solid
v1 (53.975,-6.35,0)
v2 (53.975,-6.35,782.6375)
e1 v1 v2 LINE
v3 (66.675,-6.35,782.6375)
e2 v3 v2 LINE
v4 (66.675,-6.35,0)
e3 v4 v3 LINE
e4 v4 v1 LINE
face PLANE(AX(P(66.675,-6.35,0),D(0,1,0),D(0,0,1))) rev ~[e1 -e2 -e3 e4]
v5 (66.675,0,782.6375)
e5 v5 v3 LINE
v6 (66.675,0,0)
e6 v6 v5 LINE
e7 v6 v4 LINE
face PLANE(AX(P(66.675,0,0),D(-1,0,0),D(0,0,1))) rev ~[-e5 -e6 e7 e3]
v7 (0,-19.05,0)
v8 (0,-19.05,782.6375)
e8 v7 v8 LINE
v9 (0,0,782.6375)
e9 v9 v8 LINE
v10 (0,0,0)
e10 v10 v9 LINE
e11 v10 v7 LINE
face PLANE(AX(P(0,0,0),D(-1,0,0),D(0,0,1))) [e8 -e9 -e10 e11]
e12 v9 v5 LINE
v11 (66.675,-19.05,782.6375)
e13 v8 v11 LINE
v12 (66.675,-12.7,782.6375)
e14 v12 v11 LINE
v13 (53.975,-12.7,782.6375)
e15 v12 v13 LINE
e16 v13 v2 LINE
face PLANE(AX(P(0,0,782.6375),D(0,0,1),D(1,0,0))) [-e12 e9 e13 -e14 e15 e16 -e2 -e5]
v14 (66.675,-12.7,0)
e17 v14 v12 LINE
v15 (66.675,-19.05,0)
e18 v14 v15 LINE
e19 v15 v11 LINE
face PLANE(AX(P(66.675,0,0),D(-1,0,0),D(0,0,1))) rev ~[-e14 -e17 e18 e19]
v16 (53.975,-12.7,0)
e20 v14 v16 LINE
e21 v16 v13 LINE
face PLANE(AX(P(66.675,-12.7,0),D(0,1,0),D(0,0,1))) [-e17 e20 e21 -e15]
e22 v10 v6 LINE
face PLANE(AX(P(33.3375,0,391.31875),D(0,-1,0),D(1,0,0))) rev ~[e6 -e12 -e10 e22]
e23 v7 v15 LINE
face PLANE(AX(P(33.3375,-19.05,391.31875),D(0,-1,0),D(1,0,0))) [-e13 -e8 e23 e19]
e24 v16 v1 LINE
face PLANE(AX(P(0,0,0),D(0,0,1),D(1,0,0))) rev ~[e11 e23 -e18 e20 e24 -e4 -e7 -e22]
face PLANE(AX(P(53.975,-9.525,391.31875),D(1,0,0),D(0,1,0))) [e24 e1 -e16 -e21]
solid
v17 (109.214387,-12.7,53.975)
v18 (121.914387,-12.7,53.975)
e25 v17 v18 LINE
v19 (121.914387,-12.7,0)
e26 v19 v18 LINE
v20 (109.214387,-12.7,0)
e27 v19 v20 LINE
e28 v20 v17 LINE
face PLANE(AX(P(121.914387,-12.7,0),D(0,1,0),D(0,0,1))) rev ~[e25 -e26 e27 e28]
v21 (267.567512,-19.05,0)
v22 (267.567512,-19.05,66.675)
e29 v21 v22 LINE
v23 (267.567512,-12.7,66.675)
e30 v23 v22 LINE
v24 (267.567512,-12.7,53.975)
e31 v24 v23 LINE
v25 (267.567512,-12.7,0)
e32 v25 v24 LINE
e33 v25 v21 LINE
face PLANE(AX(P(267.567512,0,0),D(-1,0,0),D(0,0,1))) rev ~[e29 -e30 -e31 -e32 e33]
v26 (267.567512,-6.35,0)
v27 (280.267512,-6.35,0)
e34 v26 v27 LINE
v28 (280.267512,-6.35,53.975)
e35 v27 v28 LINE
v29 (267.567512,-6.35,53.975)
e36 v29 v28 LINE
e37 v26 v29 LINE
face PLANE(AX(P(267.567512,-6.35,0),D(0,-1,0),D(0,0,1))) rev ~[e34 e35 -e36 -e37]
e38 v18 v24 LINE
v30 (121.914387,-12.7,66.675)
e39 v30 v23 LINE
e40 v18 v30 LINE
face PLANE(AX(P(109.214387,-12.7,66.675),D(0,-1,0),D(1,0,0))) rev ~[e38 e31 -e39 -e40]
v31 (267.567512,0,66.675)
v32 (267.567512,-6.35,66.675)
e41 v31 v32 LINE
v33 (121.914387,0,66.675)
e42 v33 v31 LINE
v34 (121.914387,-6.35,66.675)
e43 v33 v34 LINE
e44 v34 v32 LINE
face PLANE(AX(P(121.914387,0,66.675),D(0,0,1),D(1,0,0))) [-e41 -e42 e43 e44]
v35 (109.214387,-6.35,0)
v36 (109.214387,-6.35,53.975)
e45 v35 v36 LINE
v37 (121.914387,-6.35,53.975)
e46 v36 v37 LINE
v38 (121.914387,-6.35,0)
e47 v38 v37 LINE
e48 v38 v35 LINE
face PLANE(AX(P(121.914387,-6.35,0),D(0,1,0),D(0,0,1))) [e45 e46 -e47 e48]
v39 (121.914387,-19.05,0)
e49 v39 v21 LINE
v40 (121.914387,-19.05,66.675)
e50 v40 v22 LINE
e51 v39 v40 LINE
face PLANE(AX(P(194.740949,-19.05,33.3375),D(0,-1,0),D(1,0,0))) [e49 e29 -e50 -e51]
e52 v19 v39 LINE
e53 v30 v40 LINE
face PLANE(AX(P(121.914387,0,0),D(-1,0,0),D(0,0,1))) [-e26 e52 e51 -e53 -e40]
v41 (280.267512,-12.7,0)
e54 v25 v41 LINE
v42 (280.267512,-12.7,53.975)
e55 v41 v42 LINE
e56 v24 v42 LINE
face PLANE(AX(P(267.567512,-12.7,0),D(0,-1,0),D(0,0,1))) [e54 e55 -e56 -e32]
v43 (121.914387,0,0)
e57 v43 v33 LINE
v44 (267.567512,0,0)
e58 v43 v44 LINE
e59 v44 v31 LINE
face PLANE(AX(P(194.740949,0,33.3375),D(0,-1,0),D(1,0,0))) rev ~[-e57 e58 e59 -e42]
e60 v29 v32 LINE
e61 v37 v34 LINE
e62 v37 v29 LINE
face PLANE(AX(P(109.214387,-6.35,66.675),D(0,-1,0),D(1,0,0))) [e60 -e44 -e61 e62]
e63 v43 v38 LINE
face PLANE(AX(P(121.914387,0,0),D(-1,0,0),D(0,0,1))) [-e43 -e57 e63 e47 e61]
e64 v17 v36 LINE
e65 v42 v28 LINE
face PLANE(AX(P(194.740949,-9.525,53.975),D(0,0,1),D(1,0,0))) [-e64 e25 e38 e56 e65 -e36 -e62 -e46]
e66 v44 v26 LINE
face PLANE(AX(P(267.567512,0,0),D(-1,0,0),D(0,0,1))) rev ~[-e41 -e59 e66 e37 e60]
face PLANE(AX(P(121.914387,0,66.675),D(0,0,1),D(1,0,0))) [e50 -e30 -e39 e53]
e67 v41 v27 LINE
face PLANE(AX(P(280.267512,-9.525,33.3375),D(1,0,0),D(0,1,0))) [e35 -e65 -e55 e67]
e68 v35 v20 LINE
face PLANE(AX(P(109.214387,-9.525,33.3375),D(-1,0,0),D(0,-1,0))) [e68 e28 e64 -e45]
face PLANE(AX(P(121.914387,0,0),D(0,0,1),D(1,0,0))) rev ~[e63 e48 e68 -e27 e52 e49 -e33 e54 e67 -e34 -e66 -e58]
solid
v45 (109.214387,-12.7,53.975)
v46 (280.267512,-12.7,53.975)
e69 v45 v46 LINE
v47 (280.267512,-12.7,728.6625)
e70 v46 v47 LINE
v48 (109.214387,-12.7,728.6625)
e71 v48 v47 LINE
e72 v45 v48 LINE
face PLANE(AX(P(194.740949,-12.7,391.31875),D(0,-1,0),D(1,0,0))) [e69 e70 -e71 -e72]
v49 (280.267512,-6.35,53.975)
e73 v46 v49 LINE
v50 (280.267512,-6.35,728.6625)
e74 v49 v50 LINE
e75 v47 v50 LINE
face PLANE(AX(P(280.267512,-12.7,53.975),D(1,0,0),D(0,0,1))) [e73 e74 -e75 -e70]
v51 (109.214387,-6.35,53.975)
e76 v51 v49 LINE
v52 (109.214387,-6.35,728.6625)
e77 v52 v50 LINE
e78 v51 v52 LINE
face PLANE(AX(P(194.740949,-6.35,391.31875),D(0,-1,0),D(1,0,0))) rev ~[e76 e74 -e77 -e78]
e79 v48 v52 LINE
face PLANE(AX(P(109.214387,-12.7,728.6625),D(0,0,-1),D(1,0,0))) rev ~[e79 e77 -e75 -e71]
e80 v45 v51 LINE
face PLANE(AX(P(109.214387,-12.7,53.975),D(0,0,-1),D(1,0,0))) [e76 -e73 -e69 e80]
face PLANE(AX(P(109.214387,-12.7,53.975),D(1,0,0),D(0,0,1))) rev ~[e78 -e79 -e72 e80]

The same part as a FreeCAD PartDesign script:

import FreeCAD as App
import Part
import Sketcher

V = App.Vector
Q = App.Units.Quantity


def add_polygon(sketch, points):
    """Adds a closed chain of lines whose ends are joined by coincident constraints."""
    first, n = sketch.GeometryCount, len(points)
    for a, b in zip(points, points[1:] + points[:1]):
        sketch.addGeometry(Part.LineSegment(App.Vector(*a, 0), App.Vector(*b, 0)), False)
    for i in range(n):
        sketch.addConstraint(Sketcher.Constraint("Coincident", first + i, 2, first + (i + 1) % n, 1))

doc = App.newDocument("Part")
params = doc.addObject("Spreadsheet::Sheet", "Params")
for row, (alias, value) in enumerate([
    ("sketch1_width", "2.625 in"),
    ("sketch1_height", "30.8125 in"),
    ("pad1_length", "0.75 in"),
    ("sketch2_width", "0.25 in"),
    ("sketch2_height", "30.8125 in"),
    ("pocket1_length", "0.5 in"),
    ("sketch3_width", "5.734375 in"),
    ("sketch3_height", "2.625 in"),
    ("pad2_length", "0.75 in"),
    ("sketch4_width", "0.25 in"),
    ("sketch4_height", "2.625 in"),
    ("pad3_length", "0.5 in"),
    ("sketch5_width", "0.25 in"),
    ("sketch5_height", "2.625 in"),
    ("pad4_length", "0.5 in"),
    ("sketch6_height", "0.25 in"),
    ("sketch6_width", "6.734375 in"),
    ("pocket2_length", "0.5 in"),
    ("sketch7_width", "6.734375 in"),
    ("sketch7_height", "26.5625 in"),
    ("pad5_length", "0.25 in"),
], start=1):
    params.set(f"A{row}", alias)
    params.set(f"B{row}", "=" + value)
    params.setAlias(f"B{row}", alias)

body = doc.addObject("PartDesign::Body", "Body")

# Sketch on XZ plane
sketch1 = body.newObject("Sketcher::SketchObject", "Sketch")
sketch1.AttachmentSupport = (doc.getObject("XZ_Plane"), [""])
sketch1.MapMode = "FlatFace"
add_polygon(sketch1, [(0, 783), (0, 0), (67, 0), (67, 783)])  # lines 0-3
sketch1.addConstraint(Sketcher.Constraint("Vertical", 0))
sketch1.addConstraint(Sketcher.Constraint("Horizontal", 1))
sketch1.addConstraint(Sketcher.Constraint("Vertical", 2))
sketch1.addConstraint(Sketcher.Constraint("Horizontal", 3))
sketch1.addConstraint(Sketcher.Constraint("Coincident", 0, 2, -1, 1))
sketch1.addConstraint(Sketcher.Constraint("DistanceX", 1, 1, 1, 2, Q("2.625 in")))
sketch1.addConstraint(Sketcher.Constraint("DistanceY", 0, 2, 0, 1, Q("30.8125 in")))
sketch1.setExpression("Constraints[9]", "Params.sketch1_width")
sketch1.setExpression("Constraints[10]", "Params.sketch1_height")
pad1 = body.newObject("PartDesign::Pad", "Pad")
pad1.Profile = sketch1
pad1.setExpression("Length", "Params.pad1_length")

# Sketch on YZ plane
sketch2 = body.newObject("Sketcher::SketchObject", "Sketch001")
sketch2.AttachmentSupport = (doc.getObject("YZ_Plane"), [""])
sketch2.MapMode = "FlatFace"
sketch2.AttachmentOffset = App.Placement(V(0, 0, 2.625 * 25.4), App.Rotation())
add_polygon(sketch2, [(-13, 783), (-13, 0), (-6, 0), (-6, 783)])  # lines 0-3
sketch2.addConstraint(Sketcher.Constraint("Vertical", 0))
sketch2.addConstraint(Sketcher.Constraint("Horizontal", 1))
sketch2.addConstraint(Sketcher.Constraint("Vertical", 2))
sketch2.addConstraint(Sketcher.Constraint("Horizontal", 3))
sketch2.addConstraint(Sketcher.Constraint("PointOnObject", 0, 2, -1))
sketch2.addConstraint(Sketcher.Constraint("DistanceX", 1, 1, 1, 2, Q("0.25 in")))
sketch2.addConstraint(Sketcher.Constraint("DistanceX", 0, 2, -1, 1, Q("0.5 in")))
sketch2.addConstraint(Sketcher.Constraint("DistanceY", 0, 2, 0, 1, Q("30.8125 in")))
sketch2.setExpression("Constraints[9]", "Params.sketch2_width")
sketch2.setExpression("Constraints[11]", "Params.sketch2_height")
pocket1 = body.newObject("PartDesign::Pocket", "Pocket")
pocket1.Profile = sketch2
pocket1.setExpression("Length", "Params.pocket1_length")
body2 = doc.addObject("PartDesign::Body", "Body001")

# Sketch on XZ plane
sketch3 = body2.newObject("Sketcher::SketchObject", "Sketch002")
sketch3.AttachmentSupport = (doc.getObject("XZ_Plane001"), [""])
sketch3.MapMode = "FlatFace"
add_polygon(sketch3, [(122, 67), (122, 0), (268, 0), (268, 67)])  # lines 0-3
sketch3.addConstraint(Sketcher.Constraint("Vertical", 0))
sketch3.addConstraint(Sketcher.Constraint("Horizontal", 1))
sketch3.addConstraint(Sketcher.Constraint("Vertical", 2))
sketch3.addConstraint(Sketcher.Constraint("Horizontal", 3))
sketch3.addConstraint(Sketcher.Constraint("PointOnObject", 0, 2, -1))
sketch3.addConstraint(Sketcher.Constraint("DistanceX", 1, 1, 1, 2, Q("5.734375 in")))
sketch3.addConstraint(Sketcher.Constraint("DistanceY", 0, 2, 0, 1, Q("2.625 in")))
sketch3.addConstraint(Sketcher.Constraint("DistanceX", -1, 1, 1, 2, 267.567512))
sketch3.setExpression("Constraints[9]", "Params.sketch3_width")
sketch3.setExpression("Constraints[10]", "Params.sketch3_height")
pad2 = body2.newObject("PartDesign::Pad", "Pad001")
pad2.Profile = sketch3
pad2.setExpression("Length", "Params.pad2_length")

# Sketch on YZ plane
sketch4 = body2.newObject("Sketcher::SketchObject", "Sketch003")
sketch4.AttachmentSupport = (doc.getObject("YZ_Plane001"), [""])
sketch4.MapMode = "FlatFace"
sketch4.AttachmentOffset = App.Placement(V(0, 0, 121.914387), App.Rotation())
add_polygon(sketch4, [(-6, 67), (-6, 0), (-13, 0), (-13, 67)])  # lines 0-3
sketch4.addConstraint(Sketcher.Constraint("Vertical", 0))
sketch4.addConstraint(Sketcher.Constraint("Horizontal", 1))
sketch4.addConstraint(Sketcher.Constraint("Vertical", 2))
sketch4.addConstraint(Sketcher.Constraint("Horizontal", 3))
sketch4.addConstraint(Sketcher.Constraint("PointOnObject", 0, 2, -1))
sketch4.addConstraint(Sketcher.Constraint("DistanceX", 1, 2, 1, 1, Q("0.25 in")))
sketch4.addConstraint(Sketcher.Constraint("DistanceX", 1, 2, -1, 1, Q("0.5 in")))
sketch4.addConstraint(Sketcher.Constraint("DistanceY", 0, 2, 0, 1, Q("2.625 in")))
sketch4.setExpression("Constraints[9]", "Params.sketch4_width")
sketch4.setExpression("Constraints[11]", "Params.sketch4_height")
pad3 = body2.newObject("PartDesign::Pad", "Pad002")
pad3.Profile = sketch4
pad3.setExpression("Length", "Params.pad3_length")
pad3.Reversed = True

# Sketch on YZ plane
sketch5 = body2.newObject("Sketcher::SketchObject", "Sketch004")
sketch5.AttachmentSupport = (doc.getObject("YZ_Plane001"), [""])
sketch5.MapMode = "FlatFace"
sketch5.AttachmentOffset = App.Placement(V(0, 0, 267.567512), App.Rotation())
add_polygon(sketch5, [(-13, 67), (-13, 0), (-6, 0), (-6, 67)])  # lines 0-3
sketch5.addConstraint(Sketcher.Constraint("Vertical", 0))
sketch5.addConstraint(Sketcher.Constraint("Horizontal", 1))
sketch5.addConstraint(Sketcher.Constraint("Vertical", 2))
sketch5.addConstraint(Sketcher.Constraint("Horizontal", 3))
sketch5.addConstraint(Sketcher.Constraint("PointOnObject", 0, 2, -1))
sketch5.addConstraint(Sketcher.Constraint("DistanceX", 1, 1, 1, 2, Q("0.25 in")))
sketch5.addConstraint(Sketcher.Constraint("DistanceX", 0, 2, -1, 1, Q("0.5 in")))
sketch5.addConstraint(Sketcher.Constraint("DistanceY", 0, 2, 0, 1, Q("2.625 in")))
sketch5.setExpression("Constraints[9]", "Params.sketch5_width")
sketch5.setExpression("Constraints[11]", "Params.sketch5_height")
pad4 = body2.newObject("PartDesign::Pad", "Pad003")
pad4.Profile = sketch5
pad4.setExpression("Length", "Params.pad4_length")

# Sketch on XY plane
sketch6 = body2.newObject("Sketcher::SketchObject", "Sketch005")
sketch6.AttachmentSupport = (doc.getObject("XY_Plane001"), [""])
sketch6.MapMode = "FlatFace"
sketch6.AttachmentOffset = App.Placement(V(0, 0, 2.625 * 25.4), App.Rotation())
add_polygon(sketch6, [(109, -6), (109, -13), (280, -13), (280, -6)])  # lines 0-3
sketch6.addConstraint(Sketcher.Constraint("Vertical", 0))
sketch6.addConstraint(Sketcher.Constraint("Horizontal", 1))
sketch6.addConstraint(Sketcher.Constraint("Vertical", 2))
sketch6.addConstraint(Sketcher.Constraint("Horizontal", 3))
sketch6.addConstraint(Sketcher.Constraint("DistanceY", 0, 2, 0, 1, Q("0.25 in")))
sketch6.addConstraint(Sketcher.Constraint("DistanceY", 0, 2, -1, 1, Q("0.5 in")))
sketch6.addConstraint(Sketcher.Constraint("DistanceX", 1, 1, 1, 2, Q("6.734375 in")))
sketch6.addConstraint(Sketcher.Constraint("DistanceX", -1, 1, 1, 2, 280.267512))
sketch6.setExpression("Constraints[8]", "Params.sketch6_height")
sketch6.setExpression("Constraints[10]", "Params.sketch6_width")
pocket2 = body2.newObject("PartDesign::Pocket", "Pocket001")
pocket2.Profile = sketch6
pocket2.setExpression("Length", "Params.pocket2_length")
body3 = doc.addObject("PartDesign::Body", "Body002")

# Sketch on XZ plane
sketch7 = body3.newObject("Sketcher::SketchObject", "Sketch006")
sketch7.AttachmentSupport = (doc.getObject("XZ_Plane002"), [""])
sketch7.MapMode = "FlatFace"
sketch7.AttachmentOffset = App.Placement(V(0, 0, 0.5 * 25.4), App.Rotation())
add_polygon(sketch7, [(109, 729), (109, 54), (280, 54), (280, 729)])  # lines 0-3
sketch7.addConstraint(Sketcher.Constraint("Vertical", 0))
sketch7.addConstraint(Sketcher.Constraint("Horizontal", 1))
sketch7.addConstraint(Sketcher.Constraint("Vertical", 2))
sketch7.addConstraint(Sketcher.Constraint("Horizontal", 3))
sketch7.addConstraint(Sketcher.Constraint("DistanceX", 1, 1, 1, 2, Q("6.734375 in")))
sketch7.addConstraint(Sketcher.Constraint("DistanceY", 0, 2, 0, 1, Q("26.5625 in")))
sketch7.addConstraint(Sketcher.Constraint("DistanceY", -1, 1, 0, 2, Q("2.125 in")))
sketch7.addConstraint(Sketcher.Constraint("DistanceX", -1, 1, 1, 2, 280.267512))
sketch7.setExpression("Constraints[8]", "Params.sketch7_width")
sketch7.setExpression("Constraints[9]", "Params.sketch7_height")
pad5 = body3.newObject("PartDesign::Pad", "Pad004")
pad5.Profile = sketch7
pad5.setExpression("Length", "Params.pad5_length")
pad5.Reversed = True

doc.recompute()
